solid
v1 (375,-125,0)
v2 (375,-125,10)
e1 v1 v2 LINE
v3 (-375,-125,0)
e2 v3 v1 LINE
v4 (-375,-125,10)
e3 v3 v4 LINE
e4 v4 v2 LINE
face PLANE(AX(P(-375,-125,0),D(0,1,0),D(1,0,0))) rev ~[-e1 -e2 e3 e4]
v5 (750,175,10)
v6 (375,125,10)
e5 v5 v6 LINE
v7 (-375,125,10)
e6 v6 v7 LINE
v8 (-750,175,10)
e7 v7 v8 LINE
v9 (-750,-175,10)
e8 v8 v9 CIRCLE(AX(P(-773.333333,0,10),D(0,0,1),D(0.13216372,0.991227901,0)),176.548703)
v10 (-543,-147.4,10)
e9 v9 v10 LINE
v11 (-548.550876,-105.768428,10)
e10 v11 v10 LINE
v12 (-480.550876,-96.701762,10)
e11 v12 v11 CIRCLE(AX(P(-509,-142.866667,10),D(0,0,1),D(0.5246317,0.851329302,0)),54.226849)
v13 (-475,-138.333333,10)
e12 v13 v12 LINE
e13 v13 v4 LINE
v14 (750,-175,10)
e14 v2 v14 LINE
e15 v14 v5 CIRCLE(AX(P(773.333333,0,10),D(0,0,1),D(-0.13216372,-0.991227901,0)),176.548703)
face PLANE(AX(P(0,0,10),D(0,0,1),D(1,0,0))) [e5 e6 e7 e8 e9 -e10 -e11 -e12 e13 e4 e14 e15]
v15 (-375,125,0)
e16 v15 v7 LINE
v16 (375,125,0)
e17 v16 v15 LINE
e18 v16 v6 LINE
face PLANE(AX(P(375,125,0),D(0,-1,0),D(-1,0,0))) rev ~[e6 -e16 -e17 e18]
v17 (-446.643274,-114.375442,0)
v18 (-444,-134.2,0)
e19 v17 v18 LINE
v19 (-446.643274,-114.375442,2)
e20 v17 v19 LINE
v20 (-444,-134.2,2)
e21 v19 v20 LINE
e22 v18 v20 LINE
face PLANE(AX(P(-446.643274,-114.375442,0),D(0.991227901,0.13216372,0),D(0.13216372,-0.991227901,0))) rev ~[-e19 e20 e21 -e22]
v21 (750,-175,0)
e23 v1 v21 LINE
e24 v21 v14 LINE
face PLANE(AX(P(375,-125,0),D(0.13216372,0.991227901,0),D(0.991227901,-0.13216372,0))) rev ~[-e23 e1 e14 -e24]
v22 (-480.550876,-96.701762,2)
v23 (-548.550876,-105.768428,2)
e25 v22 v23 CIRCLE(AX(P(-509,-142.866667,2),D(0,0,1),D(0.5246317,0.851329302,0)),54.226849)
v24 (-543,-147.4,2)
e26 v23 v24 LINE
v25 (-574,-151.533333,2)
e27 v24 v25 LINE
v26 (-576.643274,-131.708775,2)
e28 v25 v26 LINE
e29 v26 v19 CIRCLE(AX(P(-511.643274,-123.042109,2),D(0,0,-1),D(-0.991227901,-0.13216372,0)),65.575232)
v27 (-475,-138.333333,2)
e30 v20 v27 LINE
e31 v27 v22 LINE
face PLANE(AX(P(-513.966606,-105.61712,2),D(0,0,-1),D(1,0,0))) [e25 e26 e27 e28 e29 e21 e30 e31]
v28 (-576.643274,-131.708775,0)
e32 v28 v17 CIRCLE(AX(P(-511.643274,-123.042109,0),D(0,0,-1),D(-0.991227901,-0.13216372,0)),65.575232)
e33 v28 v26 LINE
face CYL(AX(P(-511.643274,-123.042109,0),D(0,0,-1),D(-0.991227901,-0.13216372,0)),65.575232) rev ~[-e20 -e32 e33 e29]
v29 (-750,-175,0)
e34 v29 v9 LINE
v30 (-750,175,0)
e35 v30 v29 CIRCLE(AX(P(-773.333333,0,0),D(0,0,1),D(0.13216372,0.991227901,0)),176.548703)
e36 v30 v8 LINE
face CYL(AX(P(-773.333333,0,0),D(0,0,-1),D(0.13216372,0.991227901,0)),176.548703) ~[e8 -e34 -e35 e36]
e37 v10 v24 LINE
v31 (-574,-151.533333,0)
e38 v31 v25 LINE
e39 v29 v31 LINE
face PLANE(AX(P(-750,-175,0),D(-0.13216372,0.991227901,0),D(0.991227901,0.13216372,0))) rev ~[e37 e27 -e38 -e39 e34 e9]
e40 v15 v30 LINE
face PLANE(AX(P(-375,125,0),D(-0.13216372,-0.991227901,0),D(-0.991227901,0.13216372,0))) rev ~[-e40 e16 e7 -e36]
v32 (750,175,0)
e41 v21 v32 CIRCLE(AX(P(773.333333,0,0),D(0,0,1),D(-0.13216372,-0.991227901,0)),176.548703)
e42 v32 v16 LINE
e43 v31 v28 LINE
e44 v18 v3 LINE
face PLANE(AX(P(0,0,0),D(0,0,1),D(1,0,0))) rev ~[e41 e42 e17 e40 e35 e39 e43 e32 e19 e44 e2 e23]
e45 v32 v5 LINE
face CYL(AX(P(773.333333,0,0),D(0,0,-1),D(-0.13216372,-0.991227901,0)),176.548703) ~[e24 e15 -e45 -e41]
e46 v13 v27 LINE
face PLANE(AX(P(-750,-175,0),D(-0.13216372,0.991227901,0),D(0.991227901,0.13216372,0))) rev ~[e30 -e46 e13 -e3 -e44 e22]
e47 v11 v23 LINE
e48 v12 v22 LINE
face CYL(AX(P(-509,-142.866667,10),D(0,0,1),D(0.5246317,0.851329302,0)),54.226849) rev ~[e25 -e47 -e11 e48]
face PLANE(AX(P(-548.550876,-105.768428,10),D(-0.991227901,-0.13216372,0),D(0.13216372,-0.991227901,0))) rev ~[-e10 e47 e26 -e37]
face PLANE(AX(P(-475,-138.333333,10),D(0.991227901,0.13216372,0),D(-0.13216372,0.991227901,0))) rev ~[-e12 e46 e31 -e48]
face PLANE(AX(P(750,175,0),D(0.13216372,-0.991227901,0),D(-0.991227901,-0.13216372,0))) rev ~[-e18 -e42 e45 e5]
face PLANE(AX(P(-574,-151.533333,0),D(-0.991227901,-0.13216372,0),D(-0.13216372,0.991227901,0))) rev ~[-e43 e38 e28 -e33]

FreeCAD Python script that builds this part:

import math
import FreeCAD as App
import Part
import Sketcher

V = App.Vector

doc = App.newDocument("Part")
body = doc.addObject("PartDesign::Body", "Body")

# Sketch on XY plane
sketch1 = body.newObject("Sketcher::SketchObject", "Sketch")
sketch1.AttachmentSupport = (doc.getObject("XY_Plane"), [""])
sketch1.MapMode = "FlatFace"
sketch1.addGeometry([
    Part.LineSegment(V(375, 125, 0), V(-375, 125, 0)),  # 0
    Part.LineSegment(V(-375, 125, 0), V(-750, 175, 0)),  # 1
    Part.ArcOfCircle(Part.Circle(V(-773.333333, 0, 0), V(0, 0, 1), 176.548703), math.radians(82.405357), math.radians(277.594643)),  # 2
    Part.LineSegment(V(-750, -175, 0), V(-375, -125, 0)),  # 3
    Part.LineSegment(V(-375, -125, 0), V(375, -125, 0)),  # 4
    Part.LineSegment(V(375, -125, 0), V(750, -175, 0)),  # 5
    Part.ArcOfCircle(Part.Circle(V(773.333333, 0, 0), V(0, 0, 1), 176.548703), math.radians(-97.594643), math.radians(97.594643)),  # 6
    Part.LineSegment(V(750, 175, 0), V(375, 125, 0)),  # 7
], False)
sketch1.addConstraint([
    Sketcher.Constraint("Coincident", 0, 2, 1, 1),
    Sketcher.Constraint("Tangent", 1, 2, 2, 1),
    Sketcher.Constraint("Tangent", 2, 2, 3, 1),
    Sketcher.Constraint("Coincident", 3, 2, 4, 1),
    Sketcher.Constraint("Coincident", 4, 2, 5, 1),
    Sketcher.Constraint("Tangent", 5, 2, 6, 1),
    Sketcher.Constraint("Tangent", 6, 2, 7, 1),
    Sketcher.Constraint("Coincident", 7, 2, 0, 1),
    Sketcher.Constraint("Horizontal", 0),
    Sketcher.Constraint("Horizontal", 4),
    Sketcher.Constraint("Equal", 2, 6),
    Sketcher.Constraint("Symmetric", 2, 3, 6, 3, -1, 1),
    Sketcher.Constraint("Symmetric", 0, 2, 4, 2, -1, 1),
    Sketcher.Constraint("Symmetric", 2, 2, 5, 2, -2),
    Sketcher.Constraint("Parallel", 3, 7),
    Sketcher.Constraint("DistanceX", 0, 2, 0, 1, 750.0),
    Sketcher.Constraint("DistanceY", -1, 1, 0, 2, 125.0),
    Sketcher.Constraint("DistanceX", 1, 2, -1, 1, 750.0),
    Sketcher.Constraint("DistanceY", -1, 1, 1, 2, 175.0),
])
pad1 = body.newObject("PartDesign::Pad", "Pad")
pad1.Profile = sketch1
pad1.Length = 10

# Sketch on XY plane
sketch2 = body.newObject("Sketcher::SketchObject", "Sketch001")
sketch2.AttachmentSupport = (doc.getObject("XY_Plane"), [""])
sketch2.MapMode = "FlatFace"
sketch2.AttachmentOffset = App.Placement(V(0, 0, 10), App.Rotation())
sketch2.addGeometry([
    Part.LineSegment(V(-543, -147.4, 0), V(-475, -138.333333, 0)),
    Part.LineSegment(V(-475, -138.333333, 0), V(-480.550876, -96.701762, 0)),
    Part.ArcOfCircle(Part.Circle(V(-509, -142.866667, 0), V(0, 0, 1), 54.226849), math.radians(58.356547), math.radians(136.832739)),
    Part.LineSegment(V(-548.550876, -105.768428, 0), V(-543, -147.4, 0)),
], False)
sketch2.addConstraint([
    Sketcher.Constraint("Coincident", 0, 2, 1, 1),
    Sketcher.Constraint("Coincident", 1, 2, 2, 1),
    Sketcher.Constraint("Coincident", 2, 2, 3, 1),
    Sketcher.Constraint("Coincident", 3, 2, 0, 1),
    Sketcher.Constraint("Perpendicular", 0, 1),
    Sketcher.Constraint("Parallel", 1, 3),
    Sketcher.Constraint("Equal", 1, 3),
    Sketcher.Constraint("Distance", 1, 42.0),
    Sketcher.Constraint("DistanceX", 2, 3, -1, 1, 509.0),
    Sketcher.Constraint("DistanceX", 0, 2, -1, 1, 475.0),
    Sketcher.Constraint("DistanceX", 3, 2, -1, 1, 543.0),
    Sketcher.Constraint("DistanceY", 3, 2, -1, 1, 147.4),
    Sketcher.Constraint("Radius", 2, 54.226849),
])
pocket1 = body.newObject("PartDesign::Pocket", "Pocket")
pocket1.Profile = sketch2
pocket1.Type = "ThroughAll"

# Sketch on XY plane
sketch3 = body.newObject("Sketcher::SketchObject", "Sketch002")
sketch3.AttachmentSupport = (doc.getObject("XY_Plane"), [""])
sketch3.MapMode = "FlatFace"
sketch3.addGeometry([
    Part.LineSegment(V(-543, -147.4, 0), V(-574, -151.533333, 0)),  # 0
    Part.LineSegment(V(-574, -151.533333, 0), V(-576.643274, -131.708775, 0)),  # 1
    Part.ArcOfCircle(Part.Circle(V(-511.643274, -123.042109, 0), V(0, 0, 1), 65.575232), math.radians(7.594643), math.radians(187.594643)),  # 2
    Part.LineSegment(V(-446.643274, -114.375442, 0), V(-444, -134.2, 0)),  # 3
    Part.LineSegment(V(-444, -134.2, 0), V(-475, -138.333333, 0)),  # 4
    Part.LineSegment(V(-475, -138.333333, 0), V(-480.550876, -96.701762, 0)),  # 5
    Part.ArcOfCircle(Part.Circle(V(-509, -142.866667, 0), V(0, 0, 1), 54.226849), math.radians(58.356547), math.radians(136.832739)),  # 6
    Part.LineSegment(V(-548.550876, -105.768428, 0), V(-543, -147.4, 0)),  # 7
], False)
sketch3.addConstraint([
    Sketcher.Constraint("Coincident", 0, 2, 1, 1),
    Sketcher.Constraint("Tangent", 1, 2, 2, 2),
    Sketcher.Constraint("Tangent", 2, 1, 3, 1),
    Sketcher.Constraint("Coincident", 3, 2, 4, 1),
    Sketcher.Constraint("Coincident", 4, 2, 5, 1),
    Sketcher.Constraint("Coincident", 5, 2, 6, 1),
    Sketcher.Constraint("Coincident", 6, 2, 7, 1),
    Sketcher.Constraint("Coincident", 7, 2, 0, 1),
    Sketcher.Constraint("Perpendicular", 0, 1),
    Sketcher.Constraint("Parallel", 1, 3),
    Sketcher.Constraint("Perpendicular", 3, 4),
    Sketcher.Constraint("Perpendicular", 4, 5),
    Sketcher.Constraint("Parallel", 5, 7),
    Sketcher.Constraint("Equal", 1, 3),
    Sketcher.Constraint("Equal", 0, 4),
    Sketcher.Constraint("Equal", 5, 7),
    Sketcher.Constraint("Distance", 1, 20.0),
    Sketcher.Constraint("Distance", 5, 42.0),
    Sketcher.Constraint("DistanceX", 6, 3, -1, 1, 509.0),
    Sketcher.Constraint("DistanceX", 0, 2, -1, 1, 574.0),
    Sketcher.Constraint("DistanceX", 3, 2, -1, 1, 444.0),
    Sketcher.Constraint("DistanceX", 4, 2, -1, 1, 475.0),
    Sketcher.Constraint("DistanceY", 3, 2, -1, 1, 134.2),
    Sketcher.Constraint("DistanceY", 7, 2, -1, 1, 147.4),
])
pocket2 = body.newObject("PartDesign::Pocket", "Pocket001")
pocket2.Profile = sketch3
pocket2.Length = 2
pocket2.Reversed = True

doc.recompute()
